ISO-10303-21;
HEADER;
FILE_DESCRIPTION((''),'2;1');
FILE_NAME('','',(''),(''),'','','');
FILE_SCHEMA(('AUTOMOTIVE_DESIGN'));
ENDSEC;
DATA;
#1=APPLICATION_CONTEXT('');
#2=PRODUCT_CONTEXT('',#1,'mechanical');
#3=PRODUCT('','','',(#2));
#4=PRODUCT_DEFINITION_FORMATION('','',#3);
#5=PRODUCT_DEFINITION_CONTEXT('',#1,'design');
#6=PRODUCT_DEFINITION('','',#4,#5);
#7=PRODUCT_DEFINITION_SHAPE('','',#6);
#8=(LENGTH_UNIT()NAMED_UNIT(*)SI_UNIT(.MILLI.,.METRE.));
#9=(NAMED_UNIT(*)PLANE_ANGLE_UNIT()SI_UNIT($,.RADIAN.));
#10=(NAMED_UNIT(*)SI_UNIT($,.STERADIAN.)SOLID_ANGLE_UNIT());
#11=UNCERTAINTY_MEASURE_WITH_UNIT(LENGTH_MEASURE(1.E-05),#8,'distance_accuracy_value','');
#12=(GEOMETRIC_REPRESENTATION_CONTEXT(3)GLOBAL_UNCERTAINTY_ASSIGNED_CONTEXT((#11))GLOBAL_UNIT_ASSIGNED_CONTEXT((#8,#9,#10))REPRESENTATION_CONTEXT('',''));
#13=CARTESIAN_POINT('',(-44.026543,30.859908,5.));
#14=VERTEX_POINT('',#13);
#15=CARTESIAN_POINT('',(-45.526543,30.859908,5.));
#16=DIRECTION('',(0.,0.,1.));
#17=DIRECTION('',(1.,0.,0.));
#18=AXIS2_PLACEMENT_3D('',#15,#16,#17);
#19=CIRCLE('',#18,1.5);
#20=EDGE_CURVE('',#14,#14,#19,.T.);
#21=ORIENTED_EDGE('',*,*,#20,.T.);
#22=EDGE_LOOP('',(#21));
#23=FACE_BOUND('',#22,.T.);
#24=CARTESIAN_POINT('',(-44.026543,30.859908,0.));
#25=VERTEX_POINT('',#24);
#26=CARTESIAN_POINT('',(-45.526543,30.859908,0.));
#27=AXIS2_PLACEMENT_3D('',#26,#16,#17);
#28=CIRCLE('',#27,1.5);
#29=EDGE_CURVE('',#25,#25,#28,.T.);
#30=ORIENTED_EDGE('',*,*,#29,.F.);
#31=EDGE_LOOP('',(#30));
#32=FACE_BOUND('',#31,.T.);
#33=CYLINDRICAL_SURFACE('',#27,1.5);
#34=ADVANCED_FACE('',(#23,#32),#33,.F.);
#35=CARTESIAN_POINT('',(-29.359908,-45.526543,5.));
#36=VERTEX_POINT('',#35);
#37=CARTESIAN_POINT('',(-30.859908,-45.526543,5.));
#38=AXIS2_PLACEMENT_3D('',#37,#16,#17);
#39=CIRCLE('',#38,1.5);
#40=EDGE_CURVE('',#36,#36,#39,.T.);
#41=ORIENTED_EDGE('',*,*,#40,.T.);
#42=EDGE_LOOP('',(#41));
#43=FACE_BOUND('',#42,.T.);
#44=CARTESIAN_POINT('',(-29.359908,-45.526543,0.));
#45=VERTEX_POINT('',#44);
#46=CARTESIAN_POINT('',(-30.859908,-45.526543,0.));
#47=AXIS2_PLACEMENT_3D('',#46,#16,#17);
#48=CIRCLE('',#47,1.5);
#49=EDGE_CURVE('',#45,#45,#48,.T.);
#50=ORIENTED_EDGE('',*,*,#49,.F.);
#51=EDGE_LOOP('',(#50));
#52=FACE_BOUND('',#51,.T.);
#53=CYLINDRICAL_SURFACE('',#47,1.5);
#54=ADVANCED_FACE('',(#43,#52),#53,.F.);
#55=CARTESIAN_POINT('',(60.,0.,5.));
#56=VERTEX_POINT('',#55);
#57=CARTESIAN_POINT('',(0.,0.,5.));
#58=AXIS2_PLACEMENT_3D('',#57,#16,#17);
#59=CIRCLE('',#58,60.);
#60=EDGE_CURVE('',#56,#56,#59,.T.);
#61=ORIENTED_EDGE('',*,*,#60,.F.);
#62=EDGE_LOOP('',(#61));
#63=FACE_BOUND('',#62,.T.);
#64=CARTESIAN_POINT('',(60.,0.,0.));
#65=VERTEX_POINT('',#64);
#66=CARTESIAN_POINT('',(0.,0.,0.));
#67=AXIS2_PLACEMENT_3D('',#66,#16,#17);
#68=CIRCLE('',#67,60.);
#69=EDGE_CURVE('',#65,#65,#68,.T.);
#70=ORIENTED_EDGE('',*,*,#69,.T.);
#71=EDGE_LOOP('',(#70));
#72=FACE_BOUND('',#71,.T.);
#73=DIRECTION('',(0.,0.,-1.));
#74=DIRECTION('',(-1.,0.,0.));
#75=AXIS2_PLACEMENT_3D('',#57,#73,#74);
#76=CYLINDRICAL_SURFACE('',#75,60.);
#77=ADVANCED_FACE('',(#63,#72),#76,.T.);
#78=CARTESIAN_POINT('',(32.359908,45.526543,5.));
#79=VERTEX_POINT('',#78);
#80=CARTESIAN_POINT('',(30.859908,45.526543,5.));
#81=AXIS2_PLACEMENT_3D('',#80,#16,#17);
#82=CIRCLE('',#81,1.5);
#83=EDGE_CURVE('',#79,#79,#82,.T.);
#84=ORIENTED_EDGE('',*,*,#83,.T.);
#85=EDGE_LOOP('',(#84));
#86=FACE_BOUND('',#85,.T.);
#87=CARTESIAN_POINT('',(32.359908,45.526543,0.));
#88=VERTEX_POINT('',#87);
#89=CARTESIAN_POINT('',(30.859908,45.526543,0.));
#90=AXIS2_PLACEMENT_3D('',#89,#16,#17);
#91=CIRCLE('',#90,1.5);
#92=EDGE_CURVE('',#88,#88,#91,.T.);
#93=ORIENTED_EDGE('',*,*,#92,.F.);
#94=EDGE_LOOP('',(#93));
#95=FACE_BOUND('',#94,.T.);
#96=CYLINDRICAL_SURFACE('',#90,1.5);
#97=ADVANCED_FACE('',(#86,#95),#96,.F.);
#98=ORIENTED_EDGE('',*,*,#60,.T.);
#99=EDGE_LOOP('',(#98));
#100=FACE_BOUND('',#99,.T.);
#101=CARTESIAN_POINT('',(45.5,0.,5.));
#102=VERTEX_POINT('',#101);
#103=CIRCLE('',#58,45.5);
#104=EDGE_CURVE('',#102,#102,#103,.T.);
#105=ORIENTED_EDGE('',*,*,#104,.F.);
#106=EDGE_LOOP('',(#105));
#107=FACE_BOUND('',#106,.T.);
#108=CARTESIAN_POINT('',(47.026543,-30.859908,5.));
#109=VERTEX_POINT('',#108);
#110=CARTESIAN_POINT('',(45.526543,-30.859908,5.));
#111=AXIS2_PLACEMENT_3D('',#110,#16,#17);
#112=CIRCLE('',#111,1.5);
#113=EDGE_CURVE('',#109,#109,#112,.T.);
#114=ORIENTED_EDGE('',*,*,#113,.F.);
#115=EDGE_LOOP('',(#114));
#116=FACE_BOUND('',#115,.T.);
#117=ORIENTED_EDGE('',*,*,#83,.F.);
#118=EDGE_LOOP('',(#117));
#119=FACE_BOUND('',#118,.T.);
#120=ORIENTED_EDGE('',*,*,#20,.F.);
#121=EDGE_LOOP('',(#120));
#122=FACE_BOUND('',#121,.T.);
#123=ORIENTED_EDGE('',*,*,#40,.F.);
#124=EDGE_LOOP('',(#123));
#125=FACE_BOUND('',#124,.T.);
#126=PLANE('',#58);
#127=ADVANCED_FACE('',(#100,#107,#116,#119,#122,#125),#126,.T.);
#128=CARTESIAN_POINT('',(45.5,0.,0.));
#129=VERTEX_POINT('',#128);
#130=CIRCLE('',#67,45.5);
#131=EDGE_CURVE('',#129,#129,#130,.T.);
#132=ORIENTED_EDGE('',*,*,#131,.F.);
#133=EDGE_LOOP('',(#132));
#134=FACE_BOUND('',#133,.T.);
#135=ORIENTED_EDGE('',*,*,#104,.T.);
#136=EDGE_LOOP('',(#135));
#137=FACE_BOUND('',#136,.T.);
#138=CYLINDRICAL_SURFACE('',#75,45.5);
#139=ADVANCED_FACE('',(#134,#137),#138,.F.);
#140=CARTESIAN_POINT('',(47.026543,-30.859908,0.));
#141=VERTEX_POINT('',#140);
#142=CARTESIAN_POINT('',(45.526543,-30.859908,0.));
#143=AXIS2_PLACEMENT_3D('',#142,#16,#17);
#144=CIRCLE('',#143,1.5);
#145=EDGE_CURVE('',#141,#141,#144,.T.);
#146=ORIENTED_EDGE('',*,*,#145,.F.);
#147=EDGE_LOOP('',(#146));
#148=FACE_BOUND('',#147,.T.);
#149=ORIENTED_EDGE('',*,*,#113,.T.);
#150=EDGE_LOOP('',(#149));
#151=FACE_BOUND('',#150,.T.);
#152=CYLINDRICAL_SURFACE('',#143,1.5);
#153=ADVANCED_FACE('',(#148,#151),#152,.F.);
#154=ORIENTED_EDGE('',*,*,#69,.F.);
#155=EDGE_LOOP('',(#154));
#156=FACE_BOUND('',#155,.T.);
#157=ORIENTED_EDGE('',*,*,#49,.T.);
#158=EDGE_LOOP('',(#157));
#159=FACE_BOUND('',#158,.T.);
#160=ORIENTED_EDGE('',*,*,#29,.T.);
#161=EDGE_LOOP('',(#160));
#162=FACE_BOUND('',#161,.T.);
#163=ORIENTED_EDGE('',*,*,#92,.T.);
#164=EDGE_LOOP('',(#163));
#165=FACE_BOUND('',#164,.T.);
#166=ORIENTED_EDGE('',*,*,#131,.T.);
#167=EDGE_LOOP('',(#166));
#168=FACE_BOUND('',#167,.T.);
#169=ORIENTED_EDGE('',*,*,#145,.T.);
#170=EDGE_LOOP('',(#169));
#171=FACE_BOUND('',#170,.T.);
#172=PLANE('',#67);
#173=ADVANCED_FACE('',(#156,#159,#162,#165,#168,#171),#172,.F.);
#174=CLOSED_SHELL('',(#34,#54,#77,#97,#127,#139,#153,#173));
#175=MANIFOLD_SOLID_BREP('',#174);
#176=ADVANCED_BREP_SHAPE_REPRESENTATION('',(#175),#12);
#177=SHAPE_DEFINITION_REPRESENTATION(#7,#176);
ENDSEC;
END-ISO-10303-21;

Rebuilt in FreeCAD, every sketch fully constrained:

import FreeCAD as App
import Part
import Sketcher

doc = App.newDocument("Part")
body = doc.addObject("PartDesign::Body", "Body")

# Sketch on XY plane
sketch1 = doc.addObject("Sketcher::SketchObject", "Sketch")
body.addObject(sketch1)
sketch1.AttachmentSupport = (doc.XY_Plane, [""])
sketch1.MapMode = "FlatFace"
sketch1.addGeometry([
    Part.Circle(App.Vector(0, 0, 0), App.Vector(0, 0, 1), 60),
    Part.Circle(App.Vector(0, 0, 0), App.Vector(0, 0, 1), 46),
], False)
sketch1.addConstraint([
    Sketcher.Constraint("Coincident", 0, 3, -1, 1),
    Sketcher.Constraint("Coincident", 1, 3, -1, 1),
    Sketcher.Constraint("Diameter", 0, 120.0),
    Sketcher.Constraint("Diameter", 1, 91.0),
])
pad1 = doc.addObject("PartDesign::Pad", "Pad")
body.addObject(pad1)
pad1.Profile = sketch1
pad1.Length = 5

# Sketch on XY plane
sketch2 = doc.addObject("Sketcher::SketchObject", "Sketch001")
body.addObject(sketch2)
sketch2.AttachmentSupport = (doc.XY_Plane, [""])
sketch2.MapMode = "FlatFace"
sketch2.AttachmentOffset = App.Placement(App.Vector(0, 0, 5), App.Rotation())
sketch2.addGeometry([
    Part.Circle(App.Vector(-30.9, -45.5, 0), App.Vector(0, 0, 1), 1.5),
    Part.Circle(App.Vector(-45.5, 30.9, 0), App.Vector(0, 0, 1), 1.5),
    Part.Circle(App.Vector(30.9, 45.5, 0), App.Vector(0, 0, 1), 1.5),
    Part.Circle(App.Vector(45.5, -30.9, 0), App.Vector(0, 0, 1), 1.5),
], False)
sketch2.addConstraint([
    Sketcher.Constraint("Equal", 0, 1),
    Sketcher.Constraint("Equal", 1, 2),
    Sketcher.Constraint("Equal", 2, 3),
    Sketcher.Constraint("Symmetric", 0, 3, 2, 3, -1, 1),
    Sketcher.Constraint("Symmetric", 1, 3, 3, 3, -1, 1),
    Sketcher.Constraint("Diameter", 0, 3.0),
    Sketcher.Constraint("DistanceY", 0, 3, 1, 3, 76.386451),
    Sketcher.Constraint("DistanceX", 1, 3, 2, 3, 76.386451),
    Sketcher.Constraint("DistanceX", 0, 3, -1, 1, 30.859908),
    Sketcher.Constraint("DistanceY", 0, 3, -1, 1, 45.526543),
])
pocket1 = doc.addObject("PartDesign::Pocket", "Pocket")
body.addObject(pocket1)
pocket1.Profile = sketch2
pocket1.Length = 5

doc.recompute()
